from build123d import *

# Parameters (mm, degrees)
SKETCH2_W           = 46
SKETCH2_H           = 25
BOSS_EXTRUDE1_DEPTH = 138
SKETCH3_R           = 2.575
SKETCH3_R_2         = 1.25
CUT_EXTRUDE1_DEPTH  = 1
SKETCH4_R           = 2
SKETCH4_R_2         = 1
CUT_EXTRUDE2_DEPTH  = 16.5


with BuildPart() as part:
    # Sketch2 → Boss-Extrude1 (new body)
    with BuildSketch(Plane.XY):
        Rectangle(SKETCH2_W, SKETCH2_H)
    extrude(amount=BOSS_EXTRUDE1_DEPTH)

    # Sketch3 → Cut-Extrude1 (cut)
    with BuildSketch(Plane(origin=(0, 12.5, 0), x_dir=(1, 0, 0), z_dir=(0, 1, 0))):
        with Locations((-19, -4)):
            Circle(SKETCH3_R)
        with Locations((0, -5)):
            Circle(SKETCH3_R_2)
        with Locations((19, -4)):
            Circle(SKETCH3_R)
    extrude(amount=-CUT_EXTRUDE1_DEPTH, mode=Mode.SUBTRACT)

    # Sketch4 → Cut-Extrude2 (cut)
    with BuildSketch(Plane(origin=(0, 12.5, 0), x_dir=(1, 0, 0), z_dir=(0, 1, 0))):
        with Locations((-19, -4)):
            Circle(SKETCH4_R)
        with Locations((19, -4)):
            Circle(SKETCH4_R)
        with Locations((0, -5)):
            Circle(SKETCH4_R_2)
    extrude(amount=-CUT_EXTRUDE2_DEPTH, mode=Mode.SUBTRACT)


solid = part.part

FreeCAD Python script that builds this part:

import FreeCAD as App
import Part
import Sketcher
from FreeCAD import Vector
Q = App.Units.Quantity

doc = App.newDocument("Part")
body = doc.addObject("PartDesign::Body", "Body")

# Sketch on XY plane
sketch1 = doc.addObject("Sketcher::SketchObject", "Sketch")
body.addObject(sketch1)
sketch1.AttachmentSupport = (doc.XY_Plane, [""])
sketch1.MapMode = "FlatFace"
sketch1.addGeometry(Part.LineSegment(Vector(-23, 12, 0), Vector(-23, -12, 0)), False)
sketch1.addGeometry(Part.LineSegment(Vector(-23, -12, 0), Vector(23, -12, 0)), False)
sketch1.addGeometry(Part.LineSegment(Vector(23, -12, 0), Vector(23, 12, 0)), False)
sketch1.addGeometry(Part.LineSegment(Vector(23, 12, 0), Vector(-23, 12, 0)), False)
sketch1.addConstraint(Sketcher.Constraint("Coincident", 0, 2, 1, 1))
sketch1.addConstraint(Sketcher.Constraint("Coincident", 1, 2, 2, 1))
sketch1.addConstraint(Sketcher.Constraint("Coincident", 2, 2, 3, 1))
sketch1.addConstraint(Sketcher.Constraint("Coincident", 3, 2, 0, 1))
sketch1.addConstraint(Sketcher.Constraint("Vertical", 0))
sketch1.addConstraint(Sketcher.Constraint("Horizontal", 1))
sketch1.addConstraint(Sketcher.Constraint("Vertical", 2))
sketch1.addConstraint(Sketcher.Constraint("Horizontal", 3))
sketch1.addConstraint(Sketcher.Constraint("Symmetric", 0, 2, 2, 2, -1, 1))
sketch1.addConstraint(Sketcher.Constraint("DistanceX", 1, 1, 1, 2, Q("46 mm")))
sketch1.addConstraint(Sketcher.Constraint("DistanceY", 0, 2, 0, 1, Q("25 mm")))
pad1 = doc.addObject("PartDesign::Pad", "Pad")
body.addObject(pad1)
pad1.Profile = sketch1
pad1.Length = 138

# Sketch on XZ plane
sketch2 = doc.addObject("Sketcher::SketchObject", "Sketch001")
body.addObject(sketch2)
sketch2.AttachmentSupport = (doc.XZ_Plane, [""])
sketch2.MapMode = "FlatFace"
sketch2.AttachmentOffset = App.Placement(Vector(0, 0, -12.5), App.Rotation())
sketch2.addGeometry(Part.Circle(Vector(-19, 4, 0), Vector(0, 0, 1), 2.6), False)
sketch2.addGeometry(Part.Circle(Vector(0, 5, 0), Vector(0, 0, 1), 1.2), False)
sketch2.addGeometry(Part.Circle(Vector(19, 4, 0), Vector(0, 0, 1), 2.6), False)
sketch2.addConstraint(Sketcher.Constraint("Equal", 0, 2))
sketch2.addConstraint(Sketcher.Constraint("Symmetric", 0, 3, 2, 3, -2))
sketch2.addConstraint(Sketcher.Constraint("PointOnObject", 1, 3, -2))
sketch2.addConstraint(Sketcher.Constraint("Diameter", 1, Q("2.5 mm")))
sketch2.addConstraint(Sketcher.Constraint("Diameter", 0, Q("5.15 mm")))
sketch2.addConstraint(Sketcher.Constraint("DistanceX", 0, 3, -1, 1, Q("19 mm")))
sketch2.addConstraint(Sketcher.Constraint("DistanceY", -1, 1, 0, 3, Q("4 mm")))
sketch2.addConstraint(Sketcher.Constraint("DistanceY", -1, 1, 1, 3, Q("5 mm")))
pocket1 = doc.addObject("PartDesign::Pocket", "Pocket")
body.addObject(pocket1)
pocket1.Profile = sketch2
pocket1.Length = 1
pocket1.Reversed = True

# Sketch on XZ plane
sketch3 = doc.addObject("Sketcher::SketchObject", "Sketch002")
body.addObject(sketch3)
sketch3.AttachmentSupport = (doc.XZ_Plane, [""])
sketch3.MapMode = "FlatFace"
sketch3.AttachmentOffset = App.Placement(Vector(0, 0, -12.5), App.Rotation())
sketch3.addGeometry(Part.Circle(Vector(-19, 4, 0), Vector(0, 0, 1), 2), False)
sketch3.addGeometry(Part.Circle(Vector(19, 4, 0), Vector(0, 0, 1), 2), False)
sketch3.addGeometry(Part.Circle(Vector(0, 5, 0), Vector(0, 0, 1), 1), False)
sketch3.addConstraint(Sketcher.Constraint("Equal", 0, 1))
sketch3.addConstraint(Sketcher.Constraint("Symmetric", 0, 3, 1, 3, -2))
sketch3.addConstraint(Sketcher.Constraint("PointOnObject", 2, 3, -2))
sketch3.addConstraint(Sketcher.Constraint("Diameter", 0, Q("4 mm")))
sketch3.addConstraint(Sketcher.Constraint("Diameter", 2, Q("2 mm")))
sketch3.addConstraint(Sketcher.Constraint("DistanceX", 0, 3, -1, 1, Q("19 mm")))
sketch3.addConstraint(Sketcher.Constraint("DistanceY", -1, 1, 0, 3, Q("4 mm")))
sketch3.addConstraint(Sketcher.Constraint("DistanceY", -1, 1, 2, 3, Q("5 mm")))
pocket2 = doc.addObject("PartDesign::Pocket", "Pocket001")
body.addObject(pocket2)
pocket2.Profile = sketch3
pocket2.Length = 16.5
pocket2.Reversed = True

doc.recompute()
